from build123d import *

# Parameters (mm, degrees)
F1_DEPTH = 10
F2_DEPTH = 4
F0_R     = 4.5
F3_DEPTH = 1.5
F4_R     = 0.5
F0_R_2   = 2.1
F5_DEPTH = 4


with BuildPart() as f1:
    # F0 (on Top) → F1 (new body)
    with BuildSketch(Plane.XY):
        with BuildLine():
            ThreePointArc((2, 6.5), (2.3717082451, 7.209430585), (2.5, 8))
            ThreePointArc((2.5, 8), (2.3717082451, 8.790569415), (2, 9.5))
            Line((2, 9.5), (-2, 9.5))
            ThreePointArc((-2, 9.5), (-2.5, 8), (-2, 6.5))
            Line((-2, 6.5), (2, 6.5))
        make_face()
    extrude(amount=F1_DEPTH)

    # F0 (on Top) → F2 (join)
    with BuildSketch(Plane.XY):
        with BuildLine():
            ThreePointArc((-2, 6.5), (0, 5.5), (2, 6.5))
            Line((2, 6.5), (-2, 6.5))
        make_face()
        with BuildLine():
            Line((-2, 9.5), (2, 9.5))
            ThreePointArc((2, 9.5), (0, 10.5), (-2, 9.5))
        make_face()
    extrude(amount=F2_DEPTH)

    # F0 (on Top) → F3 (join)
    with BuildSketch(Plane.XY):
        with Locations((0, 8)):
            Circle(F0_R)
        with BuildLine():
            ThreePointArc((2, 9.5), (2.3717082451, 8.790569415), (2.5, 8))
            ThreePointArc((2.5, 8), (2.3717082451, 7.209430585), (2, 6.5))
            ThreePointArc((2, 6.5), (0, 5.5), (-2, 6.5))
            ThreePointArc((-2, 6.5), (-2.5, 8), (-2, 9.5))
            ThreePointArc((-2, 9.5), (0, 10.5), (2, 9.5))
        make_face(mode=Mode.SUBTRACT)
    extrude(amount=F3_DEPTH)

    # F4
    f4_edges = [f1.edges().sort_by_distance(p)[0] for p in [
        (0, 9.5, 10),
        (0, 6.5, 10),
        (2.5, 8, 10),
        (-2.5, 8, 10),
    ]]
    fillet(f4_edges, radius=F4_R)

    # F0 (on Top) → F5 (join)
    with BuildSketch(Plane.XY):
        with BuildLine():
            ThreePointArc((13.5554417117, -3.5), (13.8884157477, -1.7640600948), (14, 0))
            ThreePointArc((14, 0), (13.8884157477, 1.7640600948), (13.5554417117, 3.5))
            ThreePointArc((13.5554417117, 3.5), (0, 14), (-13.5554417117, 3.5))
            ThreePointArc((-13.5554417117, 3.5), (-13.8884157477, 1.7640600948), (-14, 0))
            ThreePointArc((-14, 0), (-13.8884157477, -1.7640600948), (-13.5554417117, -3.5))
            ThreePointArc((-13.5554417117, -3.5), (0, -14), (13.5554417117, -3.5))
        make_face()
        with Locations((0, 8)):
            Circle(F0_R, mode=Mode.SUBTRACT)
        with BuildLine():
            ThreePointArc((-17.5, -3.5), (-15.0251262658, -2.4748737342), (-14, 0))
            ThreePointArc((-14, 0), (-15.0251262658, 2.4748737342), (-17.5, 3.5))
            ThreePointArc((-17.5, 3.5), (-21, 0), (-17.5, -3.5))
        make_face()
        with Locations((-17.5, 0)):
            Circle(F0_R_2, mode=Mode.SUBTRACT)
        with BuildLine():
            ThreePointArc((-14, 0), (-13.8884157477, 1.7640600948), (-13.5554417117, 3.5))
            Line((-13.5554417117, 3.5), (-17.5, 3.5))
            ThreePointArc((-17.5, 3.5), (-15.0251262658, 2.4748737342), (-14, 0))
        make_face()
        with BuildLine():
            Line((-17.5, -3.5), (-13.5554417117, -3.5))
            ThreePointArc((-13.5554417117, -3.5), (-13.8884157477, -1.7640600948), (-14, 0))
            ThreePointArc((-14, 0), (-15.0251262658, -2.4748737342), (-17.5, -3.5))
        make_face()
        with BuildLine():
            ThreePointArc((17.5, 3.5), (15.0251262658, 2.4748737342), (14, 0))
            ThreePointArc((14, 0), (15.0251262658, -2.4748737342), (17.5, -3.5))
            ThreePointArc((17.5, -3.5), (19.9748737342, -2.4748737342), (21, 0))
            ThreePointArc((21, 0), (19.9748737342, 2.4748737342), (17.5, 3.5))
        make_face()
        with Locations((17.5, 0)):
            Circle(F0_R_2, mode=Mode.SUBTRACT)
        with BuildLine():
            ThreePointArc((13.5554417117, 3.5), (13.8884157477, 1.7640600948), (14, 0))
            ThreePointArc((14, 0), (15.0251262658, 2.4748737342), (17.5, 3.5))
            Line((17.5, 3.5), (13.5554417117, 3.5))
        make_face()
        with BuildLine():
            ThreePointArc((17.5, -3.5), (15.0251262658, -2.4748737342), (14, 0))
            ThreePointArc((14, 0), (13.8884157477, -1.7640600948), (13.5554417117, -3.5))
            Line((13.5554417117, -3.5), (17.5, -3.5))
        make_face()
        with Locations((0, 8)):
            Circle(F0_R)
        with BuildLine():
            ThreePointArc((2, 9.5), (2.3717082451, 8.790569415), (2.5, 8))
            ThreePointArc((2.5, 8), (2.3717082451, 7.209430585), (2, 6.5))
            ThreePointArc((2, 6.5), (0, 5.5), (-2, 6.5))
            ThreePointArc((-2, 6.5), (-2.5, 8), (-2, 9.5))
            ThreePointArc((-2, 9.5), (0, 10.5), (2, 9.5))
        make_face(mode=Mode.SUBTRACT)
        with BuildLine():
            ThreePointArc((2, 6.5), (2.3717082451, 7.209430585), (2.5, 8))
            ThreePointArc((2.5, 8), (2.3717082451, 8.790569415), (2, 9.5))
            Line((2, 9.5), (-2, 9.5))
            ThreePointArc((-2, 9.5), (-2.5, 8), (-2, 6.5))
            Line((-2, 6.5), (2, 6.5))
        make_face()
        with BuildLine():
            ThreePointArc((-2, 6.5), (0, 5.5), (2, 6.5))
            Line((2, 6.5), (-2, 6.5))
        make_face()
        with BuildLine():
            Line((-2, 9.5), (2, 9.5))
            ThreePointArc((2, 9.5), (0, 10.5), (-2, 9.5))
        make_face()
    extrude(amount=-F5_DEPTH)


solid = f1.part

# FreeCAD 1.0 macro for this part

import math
import FreeCAD as App
import Part
import Sketcher
from FreeCAD import Vector


def edges_at(feature, points):
    """Names of the edges that pass closest to the given points."""
    edges = feature.Shape.Edges
    near = lambda p: min(range(len(edges)), key=lambda i: edges[i].distToShape(Part.Vertex(*p))[0])
    return sorted({f"Edge{near(p) + 1}" for p in points})

doc = App.newDocument("Part")
params = doc.addObject("Spreadsheet::Sheet", "Params")
for row, (alias, value) in enumerate([
    ("sketch1_radius", "2.5 mm"),
    ("sketch1_width", "4 mm"),
    ("pad1_length", "10 mm"),
    ("sketch2_radius", "2.5 mm"),
    ("sketch2_width", "4 mm"),
    ("pad2_length", "4 mm"),
    ("sketch3_diameter", "9 mm"),
    ("sketch3_radius", "2.5 mm"),
    ("pad3_length", "1.5 mm"),
    ("fillet_radius", "0.5 mm"),
    ("sketch4_radius", "14 mm"),
    ("sketch4_diameter", "4.2 mm"),
    ("sketch4_radius2", "3.5 mm"),
    ("pad4_length", "4 mm"),
], start=1):
    params.set(f"A{row}", alias)
    params.set(f"B{row}", "=" + value)
    params.setAlias(f"B{row}", alias)

body = doc.addObject("PartDesign::Body", "Body")

# Sketch on XY plane
sketch1 = body.newObject("Sketcher::SketchObject", "Sketch")
sketch1.AttachmentSupport = (doc.getObject("XY_Plane"), [""])
sketch1.MapMode = "FlatFace"
sketch1.addGeometry(Part.ArcOfCircle(Part.Circle(Vector(0, 8, 0), Vector(0, 0, 1), 2.5), math.radians(-37), math.radians(0)), False)
sketch1.addGeometry(Part.ArcOfCircle(Part.Circle(Vector(0, 8, 0), Vector(0, 0, 1), 2.5), math.radians(0), math.radians(37)), False)
sketch1.addGeometry(Part.LineSegment(Vector(2, 9.5, 0), Vector(-2, 9.5, 0)), False)
sketch1.addGeometry(Part.ArcOfCircle(Part.Circle(Vector(0, 8, 0), Vector(0, 0, 1), 2.5), math.radians(143), math.radians(217)), False)
sketch1.addGeometry(Part.LineSegment(Vector(-2, 6.5, 0), Vector(2, 6.5, 0)), False)
sketch1.addConstraint(Sketcher.Constraint("Tangent", 0, 2, 1, 1))
sketch1.addConstraint(Sketcher.Constraint("Coincident", 1, 2, 2, 1))
sketch1.addConstraint(Sketcher.Constraint("Coincident", 2, 2, 3, 1))
sketch1.addConstraint(Sketcher.Constraint("Coincident", 3, 2, 4, 1))
sketch1.addConstraint(Sketcher.Constraint("Coincident", 4, 2, 0, 1))
sketch1.addConstraint(Sketcher.Constraint("Horizontal", 2))
sketch1.addConstraint(Sketcher.Constraint("Horizontal", 4))
sketch1.addConstraint(Sketcher.Constraint("Coincident", 3, 3, 0, 3))
sketch1.addConstraint(Sketcher.Constraint("Equal", 0, 1))
sketch1.addConstraint(Sketcher.Constraint("Equal", 1, 3))
sketch1.addConstraint(Sketcher.Constraint("PointOnObject", 0, 3, -2))
sketch1.addConstraint(Sketcher.Constraint("Horizontal", 3, 3, 0, 2))
sketch1.addConstraint(Sketcher.Constraint("Vertical", 2, 2, 3, 2))
sketch1.addConstraint(Sketcher.Constraint("Radius", 0, 2.5))
sketch1.addConstraint(Sketcher.Constraint("DistanceX", 2, 2, 2, 1, 4.0))
sketch1.addConstraint(Sketcher.Constraint("DistanceY", -1, 1, 0, 3, 8.0))
sketch1.setExpression("Constraints[13]", "Params.sketch1_radius")
sketch1.setExpression("Constraints[14]", "Params.sketch1_width")
pad1 = body.newObject("PartDesign::Pad", "Pad")
pad1.Profile = sketch1
pad1.setExpression("Length", "Params.pad1_length")

# Sketch on XY plane
sketch2 = body.newObject("Sketcher::SketchObject", "Sketch001")
sketch2.AttachmentSupport = (doc.getObject("XY_Plane"), [""])
sketch2.MapMode = "FlatFace"
sketch2.addGeometry(Part.ArcOfCircle(Part.Circle(Vector(0, 8, 0), Vector(0, 0, 1), 2.5), math.radians(-143), math.radians(-37)), False)
sketch2.addGeometry(Part.LineSegment(Vector(2, 6.5, 0), Vector(-2, 6.5, 0)), False)
sketch2.addGeometry(Part.LineSegment(Vector(-2, 9.5, 0), Vector(2, 9.5, 0)), False)
sketch2.addGeometry(Part.ArcOfCircle(Part.Circle(Vector(0, 8, 0), Vector(0, 0, 1), 2.5), math.radians(37), math.radians(143)), False)
sketch2.addConstraint(Sketcher.Constraint("Coincident", 0, 1, 1, 2))
sketch2.addConstraint(Sketcher.Constraint("Coincident", 1, 1, 0, 2))
sketch2.addConstraint(Sketcher.Constraint("Coincident", 2, 1, 3, 2))
sketch2.addConstraint(Sketcher.Constraint("Coincident", 3, 1, 2, 2))
sketch2.addConstraint(Sketcher.Constraint("Horizontal", 1))
sketch2.addConstraint(Sketcher.Constraint("Horizontal", 2))
sketch2.addConstraint(Sketcher.Constraint("Coincident", 3, 3, 0, 3))
sketch2.addConstraint(Sketcher.Constraint("Equal", 0, 3))
sketch2.addConstraint(Sketcher.Constraint("PointOnObject", 0, 3, -2))
sketch2.addConstraint(Sketcher.Constraint("Vertical", 0, 1, 2, 1))
sketch2.addConstraint(Sketcher.Constraint("Radius", 0, 2.5))
sketch2.addConstraint(Sketcher.Constraint("DistanceX", 1, 2, 1, 1, 4.0))
sketch2.addConstraint(Sketcher.Constraint("DistanceY", -1, 1, 0, 3, 8.0))
sketch2.setExpression("Constraints[10]", "Params.sketch2_radius")
sketch2.setExpression("Constraints[11]", "Params.sketch2_width")
pad2 = body.newObject("PartDesign::Pad", "Pad001")
pad2.Profile = sketch2
pad2.setExpression("Length", "Params.pad2_length")

# Sketch on XY plane
sketch3 = body.newObject("Sketcher::SketchObject", "Sketch002")
sketch3.AttachmentSupport = (doc.getObject("XY_Plane"), [""])
sketch3.MapMode = "FlatFace"
sketch3.addGeometry(Part.Circle(Vector(0, 8, 0), Vector(0, 0, 1), 4.5), False)
sketch3.addGeometry(Part.ArcOfCircle(Part.Circle(Vector(0, 8, 0), Vector(0, 0, 1), 2.5), math.radians(37), math.radians(323)), False)
sketch3.addGeometry(Part.ArcOfCircle(Part.Circle(Vector(0, 8, 0), Vector(0, 0, 1), 2.5), math.radians(0), math.radians(37)), False)
sketch3.addGeometry(Part.ArcOfCircle(Part.Circle(Vector(0, 8, 0), Vector(0, 0, 1), 2.5), math.radians(-37), math.radians(0)), False)
sketch3.addConstraint(Sketcher.Constraint("Tangent", 1, 1, 2, 2))
sketch3.addConstraint(Sketcher.Constraint("Tangent", 2, 1, 3, 2))
sketch3.addConstraint(Sketcher.Constraint("Tangent", 3, 1, 1, 2))
sketch3.addConstraint(Sketcher.Constraint("Coincident", 1, 3, 0, 3))
sketch3.addConstraint(Sketcher.Constraint("PointOnObject", 0, 3, -2))
sketch3.addConstraint(Sketcher.Constraint("Horizontal", 3, 3, 2, 1))
sketch3.addConstraint(Sketcher.Constraint("Vertical", 1, 1, 3, 1))
sketch3.addConstraint(Sketcher.Constraint("Diameter", 0, 9.0))
sketch3.addConstraint(Sketcher.Constraint("Radius", 1, 2.5))
sketch3.addConstraint(Sketcher.Constraint("DistanceY", -1, 1, 0, 3, 8.0))
sketch3.addConstraint(Sketcher.Constraint("DistanceX", -1, 1, 1, 1, 2.0))
sketch3.setExpression("Constraints[7]", "Params.sketch3_diameter")
sketch3.setExpression("Constraints[8]", "Params.sketch3_radius")
pad3 = body.newObject("PartDesign::Pad", "Pad002")
pad3.Profile = sketch3
pad3.setExpression("Length", "Params.pad3_length")
doc.recompute()

fillet = body.newObject("PartDesign::Fillet", "Fillet")
fillet.Base = (pad3, edges_at(pad3, [
    (0, 9.5, 10),
    (0, 6.5, 10),
    (2.372, 8.791, 10),
    (-2.5, 8, 10),
]))
fillet.setExpression("Radius", "Params.fillet_radius")

# Sketch on XY plane
sketch4 = body.newObject("Sketcher::SketchObject", "Sketch003")
sketch4.AttachmentSupport = (doc.getObject("XY_Plane"), [""])
sketch4.MapMode = "FlatFace"
sketch4.addGeometry(Part.ArcOfCircle(Part.Circle(Vector(17.5, 0, 0), Vector(0, 0, 1), 3.5), math.radians(-90), math.radians(0)), False)
sketch4.addGeometry(Part.ArcOfCircle(Part.Circle(Vector(17.5, 0, 0), Vector(0, 0, 1), 3.5), math.radians(0), math.radians(90)), False)
sketch4.addGeometry(Part.LineSegment(Vector(17.5, 3.5, 0), Vector(13.6, 3.5, 0)), False)
sketch4.addGeometry(Part.ArcOfCircle(Part.Circle(Vector(0, 0, 0), Vector(0, 0, 1), 14), math.radians(14), math.radians(166)), False)
sketch4.addGeometry(Part.LineSegment(Vector(-13.6, 3.5, 0), Vector(-17.5, 3.5, 0)), False)
sketch4.addGeometry(Part.ArcOfCircle(Part.Circle(Vector(-17.5, 0, 0), Vector(0, 0, 1), 3.5), math.radians(90), math.radians(270)), False)
sketch4.addGeometry(Part.LineSegment(Vector(-17.5, -3.5, 0), Vector(-13.6, -3.5, 0)), False)
sketch4.addGeometry(Part.ArcOfCircle(Part.Circle(Vector(0, 0, 0), Vector(0, 0, 1), 14), math.radians(-166), math.radians(-14)), False)
sketch4.addGeometry(Part.LineSegment(Vector(13.6, -3.5, 0), Vector(17.5, -3.5, 0)), False)
sketch4.addGeometry(Part.Circle(Vector(-17.5, 0, 0), Vector(0, 0, 1), 2.1), False)
sketch4.addGeometry(Part.Circle(Vector(17.5, 0, 0), Vector(0, 0, 1), 2.1), False)
sketch4.addConstraint(Sketcher.Constraint("Tangent", 0, 2, 1, 1))
sketch4.addConstraint(Sketcher.Constraint("Tangent", 1, 2, 2, 1))
sketch4.addConstraint(Sketcher.Constraint("Coincident", 2, 2, 3, 1))
sketch4.addConstraint(Sketcher.Constraint("Coincident", 3, 2, 4, 1))
sketch4.addConstraint(Sketcher.Constraint("Tangent", 4, 2, 5, 1))
sketch4.addConstraint(Sketcher.Constraint("Tangent", 5, 2, 6, 1))
sketch4.addConstraint(Sketcher.Constraint("Coincident", 6, 2, 7, 1))
sketch4.addConstraint(Sketcher.Constraint("Coincident", 7, 2, 8, 1))
sketch4.addConstraint(Sketcher.Constraint("Tangent", 8, 2, 0, 1))
sketch4.addConstraint(Sketcher.Constraint("Horizontal", 2))
sketch4.addConstraint(Sketcher.Constraint("Horizontal", 4))
sketch4.addConstraint(Sketcher.Constraint("Horizontal", 6))
sketch4.addConstraint(Sketcher.Constraint("Horizontal", 8))
sketch4.addConstraint(Sketcher.Constraint("Coincident", 3, 3, -1, 1))
sketch4.addConstraint(Sketcher.Constraint("Coincident", 7, 3, -1, 1))
sketch4.addConstraint(Sketcher.Constraint("Coincident", 9, 3, 5, 3))
sketch4.addConstraint(Sketcher.Constraint("Coincident", 10, 3, 0, 3))
sketch4.addConstraint(Sketcher.Constraint("Equal", 0, 1))
sketch4.addConstraint(Sketcher.Constraint("Equal", 1, 5))
sketch4.addConstraint(Sketcher.Constraint("Equal", 3, 7))
sketch4.addConstraint(Sketcher.Constraint("Equal", 9, 10))
sketch4.addConstraint(Sketcher.Constraint("Symmetric", 0, 3, 5, 3, -1, 1))
sketch4.addConstraint(Sketcher.Constraint("PointOnObject", 0, 3, -1))
sketch4.addConstraint(Sketcher.Constraint("PointOnObject", 0, 2, -1))
sketch4.addConstraint(Sketcher.Constraint("Radius", 3, 14.0))
sketch4.addConstraint(Sketcher.Constraint("Diameter", 9, 4.2))
sketch4.addConstraint(Sketcher.Constraint("Radius", 0, 3.5))
sketch4.addConstraint(Sketcher.Constraint("DistanceX", -1, 1, 0, 2, 21.0))
sketch4.setExpression("Constraints[24]", "Params.sketch4_radius")
sketch4.setExpression("Constraints[25]", "Params.sketch4_diameter")
sketch4.setExpression("Constraints[26]", "Params.sketch4_radius2")
pad4 = body.newObject("PartDesign::Pad", "Pad003")
pad4.Profile = sketch4
pad4.setExpression("Length", "Params.pad4_length")
pad4.Reversed = True

doc.recompute()
